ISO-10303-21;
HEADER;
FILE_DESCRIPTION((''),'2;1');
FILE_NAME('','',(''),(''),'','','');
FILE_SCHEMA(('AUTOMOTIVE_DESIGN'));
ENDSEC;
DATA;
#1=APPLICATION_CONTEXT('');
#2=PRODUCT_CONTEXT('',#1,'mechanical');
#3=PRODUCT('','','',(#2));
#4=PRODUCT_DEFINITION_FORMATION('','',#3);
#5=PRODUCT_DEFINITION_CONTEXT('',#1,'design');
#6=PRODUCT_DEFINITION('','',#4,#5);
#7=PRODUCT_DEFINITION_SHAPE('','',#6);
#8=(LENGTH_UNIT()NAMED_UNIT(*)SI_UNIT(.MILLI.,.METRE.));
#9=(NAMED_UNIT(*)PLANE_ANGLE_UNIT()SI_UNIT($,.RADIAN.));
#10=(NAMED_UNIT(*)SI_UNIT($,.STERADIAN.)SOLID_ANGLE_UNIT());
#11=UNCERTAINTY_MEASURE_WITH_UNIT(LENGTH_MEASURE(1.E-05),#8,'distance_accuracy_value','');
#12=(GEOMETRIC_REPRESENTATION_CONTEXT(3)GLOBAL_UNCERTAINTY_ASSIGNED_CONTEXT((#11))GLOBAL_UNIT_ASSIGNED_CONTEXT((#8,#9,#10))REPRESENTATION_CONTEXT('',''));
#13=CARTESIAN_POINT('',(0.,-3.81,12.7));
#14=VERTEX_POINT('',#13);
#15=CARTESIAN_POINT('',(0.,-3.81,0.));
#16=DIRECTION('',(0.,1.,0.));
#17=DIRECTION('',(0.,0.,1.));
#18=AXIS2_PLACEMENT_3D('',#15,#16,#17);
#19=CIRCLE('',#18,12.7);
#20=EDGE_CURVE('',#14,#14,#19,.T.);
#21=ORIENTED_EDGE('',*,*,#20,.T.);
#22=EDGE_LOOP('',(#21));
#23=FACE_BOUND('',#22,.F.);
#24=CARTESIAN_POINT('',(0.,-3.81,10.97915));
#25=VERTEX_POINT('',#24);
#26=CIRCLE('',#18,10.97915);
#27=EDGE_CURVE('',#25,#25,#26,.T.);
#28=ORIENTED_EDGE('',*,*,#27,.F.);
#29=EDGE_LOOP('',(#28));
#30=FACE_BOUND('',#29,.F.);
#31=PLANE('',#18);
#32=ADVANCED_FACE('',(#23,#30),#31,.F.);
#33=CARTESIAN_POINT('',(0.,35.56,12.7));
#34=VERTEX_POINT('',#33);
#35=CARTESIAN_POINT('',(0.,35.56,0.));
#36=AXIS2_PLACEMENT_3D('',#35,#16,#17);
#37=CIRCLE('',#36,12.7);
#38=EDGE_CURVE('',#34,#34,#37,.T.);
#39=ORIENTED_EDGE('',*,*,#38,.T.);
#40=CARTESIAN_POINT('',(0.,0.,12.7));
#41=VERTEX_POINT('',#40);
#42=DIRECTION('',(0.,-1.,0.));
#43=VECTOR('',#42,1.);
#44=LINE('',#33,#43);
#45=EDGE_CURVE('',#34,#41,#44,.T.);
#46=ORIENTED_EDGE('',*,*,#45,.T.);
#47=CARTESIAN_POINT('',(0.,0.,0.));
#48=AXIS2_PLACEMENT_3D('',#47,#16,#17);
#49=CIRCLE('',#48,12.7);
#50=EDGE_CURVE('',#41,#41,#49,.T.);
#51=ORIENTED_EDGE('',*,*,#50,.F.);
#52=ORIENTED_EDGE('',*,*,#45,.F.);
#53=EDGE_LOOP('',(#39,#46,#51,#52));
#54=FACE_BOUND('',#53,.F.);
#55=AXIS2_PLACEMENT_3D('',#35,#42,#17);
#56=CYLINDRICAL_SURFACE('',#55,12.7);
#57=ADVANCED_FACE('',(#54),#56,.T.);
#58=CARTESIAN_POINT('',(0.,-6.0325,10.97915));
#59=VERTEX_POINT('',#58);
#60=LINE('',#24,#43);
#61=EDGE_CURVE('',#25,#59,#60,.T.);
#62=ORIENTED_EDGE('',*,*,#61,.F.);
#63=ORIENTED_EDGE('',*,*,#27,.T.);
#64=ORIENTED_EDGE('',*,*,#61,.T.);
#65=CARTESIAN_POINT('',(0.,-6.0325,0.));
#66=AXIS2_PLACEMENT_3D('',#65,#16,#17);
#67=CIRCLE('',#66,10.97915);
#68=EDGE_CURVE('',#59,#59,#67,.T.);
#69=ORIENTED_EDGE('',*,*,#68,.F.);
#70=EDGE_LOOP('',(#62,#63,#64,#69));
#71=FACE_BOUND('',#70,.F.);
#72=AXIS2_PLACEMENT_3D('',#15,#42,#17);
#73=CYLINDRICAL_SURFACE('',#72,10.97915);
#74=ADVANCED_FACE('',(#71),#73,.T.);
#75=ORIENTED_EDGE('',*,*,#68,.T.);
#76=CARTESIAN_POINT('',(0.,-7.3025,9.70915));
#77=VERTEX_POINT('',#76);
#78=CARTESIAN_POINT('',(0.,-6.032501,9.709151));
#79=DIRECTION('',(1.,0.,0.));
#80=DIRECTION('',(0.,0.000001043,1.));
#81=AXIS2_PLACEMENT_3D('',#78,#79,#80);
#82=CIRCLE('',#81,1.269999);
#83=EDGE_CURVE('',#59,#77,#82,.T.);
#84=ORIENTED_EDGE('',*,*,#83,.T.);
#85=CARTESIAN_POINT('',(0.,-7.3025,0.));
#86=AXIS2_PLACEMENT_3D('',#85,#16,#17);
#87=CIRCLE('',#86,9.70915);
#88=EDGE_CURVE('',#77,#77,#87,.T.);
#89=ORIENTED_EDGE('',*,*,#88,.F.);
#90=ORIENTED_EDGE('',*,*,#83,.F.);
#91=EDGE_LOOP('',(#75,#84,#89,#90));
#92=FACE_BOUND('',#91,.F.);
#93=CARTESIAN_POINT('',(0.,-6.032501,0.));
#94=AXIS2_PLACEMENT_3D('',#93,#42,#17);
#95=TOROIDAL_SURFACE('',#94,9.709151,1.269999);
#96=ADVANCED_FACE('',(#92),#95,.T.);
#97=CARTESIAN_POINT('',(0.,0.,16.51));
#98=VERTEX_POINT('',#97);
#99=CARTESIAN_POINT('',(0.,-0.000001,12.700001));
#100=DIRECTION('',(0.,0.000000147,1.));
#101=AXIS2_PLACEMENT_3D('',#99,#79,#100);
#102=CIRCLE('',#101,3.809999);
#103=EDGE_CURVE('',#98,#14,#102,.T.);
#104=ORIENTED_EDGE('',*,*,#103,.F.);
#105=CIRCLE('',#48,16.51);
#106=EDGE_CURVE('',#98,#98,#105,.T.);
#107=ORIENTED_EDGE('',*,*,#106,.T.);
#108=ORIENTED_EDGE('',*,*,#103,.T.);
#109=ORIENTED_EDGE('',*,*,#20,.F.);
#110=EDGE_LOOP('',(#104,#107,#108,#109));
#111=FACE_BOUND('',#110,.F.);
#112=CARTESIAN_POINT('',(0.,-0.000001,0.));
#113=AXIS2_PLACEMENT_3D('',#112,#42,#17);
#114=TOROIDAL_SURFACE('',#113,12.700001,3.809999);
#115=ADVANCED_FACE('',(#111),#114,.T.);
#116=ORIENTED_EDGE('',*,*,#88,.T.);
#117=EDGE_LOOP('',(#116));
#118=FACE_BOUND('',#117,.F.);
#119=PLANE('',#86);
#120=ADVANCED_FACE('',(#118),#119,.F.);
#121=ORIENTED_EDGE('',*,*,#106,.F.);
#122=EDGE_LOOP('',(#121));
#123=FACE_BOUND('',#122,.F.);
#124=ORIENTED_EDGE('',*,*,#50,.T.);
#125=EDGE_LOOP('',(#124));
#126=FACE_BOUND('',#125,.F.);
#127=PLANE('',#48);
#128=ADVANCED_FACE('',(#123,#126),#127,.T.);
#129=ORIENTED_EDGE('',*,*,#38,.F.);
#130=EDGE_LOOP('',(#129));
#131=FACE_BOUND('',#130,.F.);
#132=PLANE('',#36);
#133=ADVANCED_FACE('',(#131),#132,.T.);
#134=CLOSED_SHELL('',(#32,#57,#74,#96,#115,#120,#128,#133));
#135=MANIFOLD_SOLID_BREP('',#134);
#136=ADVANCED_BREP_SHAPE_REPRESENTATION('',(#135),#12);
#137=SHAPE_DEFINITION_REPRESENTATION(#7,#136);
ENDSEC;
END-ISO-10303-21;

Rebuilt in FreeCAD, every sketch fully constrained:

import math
import FreeCAD as App
import Part
import Sketcher
from FreeCAD import Vector
Q = App.Units.Quantity

doc = App.newDocument("Part")
body = doc.addObject("PartDesign::Body", "Body")

sketch1 = doc.addObject("Sketcher::SketchObject", "Sketch")
body.addObject(sketch1)
sketch1.AttachmentSupport = (doc.YZ_Plane, [""])
sketch1.MapMode = "FlatFace"
sketch1.addGeometry([
    Part.LineSegment(Vector(0, 12.7, 0), Vector(0, 16.5, 0)),
    Part.ArcOfCircle(Part.Circle(Vector(0, 12.7, 0), Vector(0, 0, 1), 3.8), math.radians(90), math.radians(180)),
    Part.LineSegment(Vector(-3.8, 12.7, 0), Vector(-3.8, 11, 0)),
    Part.LineSegment(Vector(-3.8, 11, 0), Vector(-6, 11, 0)),
    Part.ArcOfCircle(Part.Circle(Vector(-6, 9.7, 0), Vector(0, 0, 1), 1.3), math.radians(90), math.radians(180)),
    Part.LineSegment(Vector(-7.3, 9.7, 0), Vector(-7.3, 0, 0)),
    Part.LineSegment(Vector(-7.3, 0, 0), Vector(35.6, 0, 0)),
    Part.LineSegment(Vector(35.6, 0, 0), Vector(35.6, 12.7, 0)),
    Part.LineSegment(Vector(35.6, 12.7, 0), Vector(0, 12.7, 0)),
], False)
sketch1.addConstraint([
    Sketcher.Constraint("Coincident", 0, 2, 1, 1),
    Sketcher.Constraint("Tangent", 1, 2, 2, 1),
    Sketcher.Constraint("Coincident", 2, 2, 3, 1),
    Sketcher.Constraint("Tangent", 3, 2, 4, 1),
    Sketcher.Constraint("Tangent", 4, 2, 5, 1),
    Sketcher.Constraint("Coincident", 5, 2, 6, 1),
    Sketcher.Constraint("Coincident", 6, 2, 7, 1),
    Sketcher.Constraint("Coincident", 7, 2, 8, 1),
    Sketcher.Constraint("Coincident", 8, 2, 0, 1),
    Sketcher.Constraint("Vertical", 0),
    Sketcher.Constraint("Vertical", 2),
    Sketcher.Constraint("Horizontal", 3),
    Sketcher.Constraint("Vertical", 5),
    Sketcher.Constraint("Horizontal", 6),
    Sketcher.Constraint("Vertical", 7),
    Sketcher.Constraint("Horizontal", 8),
    Sketcher.Constraint("Coincident", 8, 2, 1, 3),
    Sketcher.Constraint("PointOnObject", 1, 3, -2),
    Sketcher.Constraint("PointOnObject", 5, 2, -1),
    Sketcher.Constraint("Radius", 1, Q("0.15 in")),
    Sketcher.Constraint("Radius", 4, Q("0.0499999 in")),
    Sketcher.Constraint("DistanceX", 8, 2, 8, 1, Q("1.4 in")),
    Sketcher.Constraint("DistanceY", 7, 1, 7, 2, Q("0.5 in")),
    Sketcher.Constraint("DistanceX", 6, 1, 6, 2, Q("1.6875 in")),
    Sketcher.Constraint("DistanceY", 2, 2, 2, 1, Q("1.72085 mm")),
])
revolution = doc.addObject("PartDesign::Revolution", "Revolution")
body.addObject(revolution)
revolution.Profile = sketch1
revolution.ReferenceAxis = (sketch1, ["H_Axis"])
revolution.Angle = 360

doc.recompute()
